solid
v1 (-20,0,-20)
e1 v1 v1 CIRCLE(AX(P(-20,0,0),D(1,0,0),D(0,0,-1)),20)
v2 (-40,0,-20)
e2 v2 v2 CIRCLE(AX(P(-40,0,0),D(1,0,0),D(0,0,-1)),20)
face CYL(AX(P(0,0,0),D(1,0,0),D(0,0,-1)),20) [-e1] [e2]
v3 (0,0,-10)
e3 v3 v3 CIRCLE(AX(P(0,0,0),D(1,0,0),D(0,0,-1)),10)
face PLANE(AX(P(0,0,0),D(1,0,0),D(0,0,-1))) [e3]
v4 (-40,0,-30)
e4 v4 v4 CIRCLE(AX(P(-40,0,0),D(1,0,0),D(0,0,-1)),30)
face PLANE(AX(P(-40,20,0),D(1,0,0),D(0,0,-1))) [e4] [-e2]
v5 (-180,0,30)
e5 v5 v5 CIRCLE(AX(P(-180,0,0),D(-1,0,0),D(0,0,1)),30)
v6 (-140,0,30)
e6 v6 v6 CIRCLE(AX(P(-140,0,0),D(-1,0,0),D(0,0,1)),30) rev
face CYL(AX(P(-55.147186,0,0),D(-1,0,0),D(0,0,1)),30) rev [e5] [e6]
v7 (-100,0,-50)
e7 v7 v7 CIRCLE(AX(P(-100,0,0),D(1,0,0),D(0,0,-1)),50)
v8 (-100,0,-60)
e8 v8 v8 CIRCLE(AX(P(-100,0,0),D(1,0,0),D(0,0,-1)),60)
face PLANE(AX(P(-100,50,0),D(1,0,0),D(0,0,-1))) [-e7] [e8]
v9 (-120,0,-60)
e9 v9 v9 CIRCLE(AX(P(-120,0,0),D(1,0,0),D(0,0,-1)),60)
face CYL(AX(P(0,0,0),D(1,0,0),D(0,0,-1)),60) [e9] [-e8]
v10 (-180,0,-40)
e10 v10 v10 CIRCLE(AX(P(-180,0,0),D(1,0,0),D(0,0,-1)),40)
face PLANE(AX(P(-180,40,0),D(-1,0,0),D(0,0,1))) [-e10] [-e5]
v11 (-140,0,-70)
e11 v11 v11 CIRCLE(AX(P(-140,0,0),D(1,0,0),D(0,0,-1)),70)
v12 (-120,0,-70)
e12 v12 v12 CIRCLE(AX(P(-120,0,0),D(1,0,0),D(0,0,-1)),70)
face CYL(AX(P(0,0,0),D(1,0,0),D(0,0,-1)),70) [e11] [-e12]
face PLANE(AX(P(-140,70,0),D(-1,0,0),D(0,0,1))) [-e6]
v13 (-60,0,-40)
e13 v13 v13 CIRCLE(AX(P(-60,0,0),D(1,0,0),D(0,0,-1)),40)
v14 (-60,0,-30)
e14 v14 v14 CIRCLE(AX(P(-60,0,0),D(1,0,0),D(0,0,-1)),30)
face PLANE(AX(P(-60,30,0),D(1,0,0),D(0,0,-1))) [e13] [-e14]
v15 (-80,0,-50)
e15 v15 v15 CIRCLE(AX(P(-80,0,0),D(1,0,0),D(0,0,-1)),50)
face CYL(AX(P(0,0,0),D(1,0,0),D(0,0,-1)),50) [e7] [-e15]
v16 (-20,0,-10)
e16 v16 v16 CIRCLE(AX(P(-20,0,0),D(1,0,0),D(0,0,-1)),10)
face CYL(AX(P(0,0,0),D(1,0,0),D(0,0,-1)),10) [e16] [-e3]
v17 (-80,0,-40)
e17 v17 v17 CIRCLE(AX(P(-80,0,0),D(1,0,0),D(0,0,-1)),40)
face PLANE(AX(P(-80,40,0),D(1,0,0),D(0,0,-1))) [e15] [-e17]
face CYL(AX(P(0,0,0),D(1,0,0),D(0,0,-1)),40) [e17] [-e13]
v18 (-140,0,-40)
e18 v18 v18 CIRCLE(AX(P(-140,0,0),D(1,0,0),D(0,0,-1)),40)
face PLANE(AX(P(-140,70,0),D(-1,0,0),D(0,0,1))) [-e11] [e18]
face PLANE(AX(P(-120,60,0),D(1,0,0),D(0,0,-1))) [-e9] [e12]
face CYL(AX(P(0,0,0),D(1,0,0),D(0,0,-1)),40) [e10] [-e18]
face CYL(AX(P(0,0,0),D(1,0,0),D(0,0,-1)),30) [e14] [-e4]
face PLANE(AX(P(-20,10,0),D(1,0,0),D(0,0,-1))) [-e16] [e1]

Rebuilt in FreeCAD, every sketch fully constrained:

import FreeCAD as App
import Part
import Sketcher

V = App.Vector
Q = App.Units.Quantity


def add_polygon(sketch, points):
    """Adds a closed chain of lines whose ends are joined by coincident constraints."""
    first, n = sketch.GeometryCount, len(points)
    for a, b in zip(points, points[1:] + points[:1]):
        sketch.addGeometry(Part.LineSegment(App.Vector(*a, 0), App.Vector(*b, 0)), False)
    for i in range(n):
        sketch.addConstraint(Sketcher.Constraint("Coincident", first + i, 2, first + (i + 1) % n, 1))

doc = App.newDocument("Part")
body = doc.addObject("PartDesign::Body", "Body")

sketch1 = body.newObject("Sketcher::SketchObject", "Sketch")
sketch1.AttachmentSupport = (doc.getObject("XY_Plane"), [""])
sketch1.MapMode = "FlatFace"
add_polygon(sketch1, [(0, 0), (0, 10), (-20, 10), (-20, 20), (-40, 20), (-40, 30), (-60, 30), (-60, 40), (-80, 40), (-80, 50), (-100, 50), (-100, 60), (-120, 60), (-120, 70), (-140, 70), (-140, 40), (-180, 40), (-180, 0)])
sketch1.addConstraint([
    Sketcher.Constraint("Vertical", 0),
    Sketcher.Constraint("Horizontal", 1),
    Sketcher.Constraint("Vertical", 2),
    Sketcher.Constraint("Horizontal", 3),
    Sketcher.Constraint("Vertical", 4),
    Sketcher.Constraint("Horizontal", 5),
    Sketcher.Constraint("Vertical", 6),
    Sketcher.Constraint("Horizontal", 7),
    Sketcher.Constraint("Vertical", 8),
    Sketcher.Constraint("Horizontal", 9),
    Sketcher.Constraint("Vertical", 10),
    Sketcher.Constraint("Horizontal", 11),
    Sketcher.Constraint("Vertical", 12),
    Sketcher.Constraint("Horizontal", 13),
    Sketcher.Constraint("Vertical", 14),
    Sketcher.Constraint("Horizontal", 15),
    Sketcher.Constraint("Vertical", 16),
    Sketcher.Constraint("Horizontal", 17),
    Sketcher.Constraint("Coincident", 17, 2, -1, 1),
    Sketcher.Constraint("Horizontal", 7, 2, 14, 2),
    Sketcher.Constraint("Equal", 1, 3),
    Sketcher.Constraint("Equal", 3, 5),
    Sketcher.Constraint("Equal", 5, 7),
    Sketcher.Constraint("Equal", 7, 9),
    Sketcher.Constraint("Equal", 9, 11),
    Sketcher.Constraint("Equal", 11, 13),
    Sketcher.Constraint("Equal", 0, 2),
    Sketcher.Constraint("Equal", 2, 4),
    Sketcher.Constraint("Equal", 4, 6),
    Sketcher.Constraint("Equal", 6, 8),
    Sketcher.Constraint("Equal", 8, 10),
    Sketcher.Constraint("Equal", 10, 12),
    Sketcher.Constraint("Equal", 15, 16),
    Sketcher.Constraint("DistanceX", 1, 2, 1, 1, Q("20 mm")),
    Sketcher.Constraint("DistanceX", 15, 2, 15, 1, Q("40 mm")),
])
revolution = body.newObject("PartDesign::Revolution", "Revolution")
revolution.Profile = sketch1
revolution.ReferenceAxis = (sketch1, ["H_Axis"])
revolution.Angle = 360

sketch2 = body.newObject("Sketcher::SketchObject", "Sketch001")
sketch2.AttachmentSupport = (doc.getObject("YZ_Plane"), [""])
sketch2.MapMode = "FlatFace"
sketch2.AttachmentOffset = App.Placement(V(0, 0, -180), App.Rotation())
sketch2.addGeometry(Part.Circle(V(0, 0, 0), V(0, 0, 1), 30), False)
sketch2.addConstraint([
    Sketcher.Constraint("Coincident", 0, 3, -1, 1),
    Sketcher.Constraint("Diameter", 0, Q("60 mm")),
])
pocket1 = body.newObject("PartDesign::Pocket", "Pocket")
pocket1.Profile = sketch2
pocket1.Length = 40
pocket1.Reversed = True

doc.recompute()
